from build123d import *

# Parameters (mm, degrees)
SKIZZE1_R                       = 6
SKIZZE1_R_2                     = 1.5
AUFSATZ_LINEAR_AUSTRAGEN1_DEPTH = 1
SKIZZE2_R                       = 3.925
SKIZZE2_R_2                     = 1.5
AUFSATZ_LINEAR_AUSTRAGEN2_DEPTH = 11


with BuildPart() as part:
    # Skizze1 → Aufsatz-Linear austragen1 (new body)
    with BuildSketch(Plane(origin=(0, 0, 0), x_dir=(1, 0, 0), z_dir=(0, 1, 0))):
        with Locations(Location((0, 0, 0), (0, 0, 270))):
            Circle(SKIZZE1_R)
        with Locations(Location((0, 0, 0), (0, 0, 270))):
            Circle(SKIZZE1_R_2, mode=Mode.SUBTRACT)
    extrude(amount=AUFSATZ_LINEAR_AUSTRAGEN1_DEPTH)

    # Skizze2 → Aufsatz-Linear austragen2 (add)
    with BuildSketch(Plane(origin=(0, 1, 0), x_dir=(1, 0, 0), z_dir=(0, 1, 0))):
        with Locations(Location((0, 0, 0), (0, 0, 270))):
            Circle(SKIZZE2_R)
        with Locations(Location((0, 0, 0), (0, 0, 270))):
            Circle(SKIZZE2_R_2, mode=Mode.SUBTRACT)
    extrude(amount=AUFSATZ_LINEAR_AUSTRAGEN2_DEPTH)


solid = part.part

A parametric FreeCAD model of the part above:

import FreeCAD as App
import Part
import Sketcher

V = App.Vector
Q = App.Units.Quantity

doc = App.newDocument("Part")
body = doc.addObject("PartDesign::Body", "Body")

# Sketch on XZ plane
sketch1 = doc.addObject("Sketcher::SketchObject", "Sketch")
body.addObject(sketch1)
sketch1.AttachmentSupport = (doc.XZ_Plane, [""])
sketch1.MapMode = "FlatFace"
sketch1.addGeometry([
    Part.Circle(V(0, 0, 0), V(0, 0, 1), 6),
    Part.Circle(V(0, 0, 0), V(0, 0, 1), 1.5),
], False)
sketch1.addConstraint([
    Sketcher.Constraint("Coincident", 0, 3, -1, 1),
    Sketcher.Constraint("Coincident", 1, 3, -1, 1),
    Sketcher.Constraint("Diameter", 0, Q("12 mm")),
    Sketcher.Constraint("Diameter", 1, Q("3 mm")),
])
pad1 = doc.addObject("PartDesign::Pad", "Pad")
body.addObject(pad1)
pad1.Profile = sketch1
pad1.Length = 1
pad1.Reversed = True

# Sketch on XZ plane
sketch2 = doc.addObject("Sketcher::SketchObject", "Sketch001")
body.addObject(sketch2)
sketch2.AttachmentSupport = (doc.XZ_Plane, [""])
sketch2.MapMode = "FlatFace"
sketch2.AttachmentOffset = App.Placement(V(0, 0, -1), App.Rotation())
sketch2.addGeometry([
    Part.Circle(V(0, 0, 0), V(0, 0, 1), 3.9),
    Part.Circle(V(0, 0, 0), V(0, 0, 1), 1.5),
], False)
sketch2.addConstraint([
    Sketcher.Constraint("Coincident", 0, 3, -1, 1),
    Sketcher.Constraint("Coincident", 1, 3, -1, 1),
    Sketcher.Constraint("Diameter", 1, Q("3 mm")),
    Sketcher.Constraint("Diameter", 0, Q("7.85 mm")),
])
pad2 = doc.addObject("PartDesign::Pad", "Pad001")
body.addObject(pad2)
pad2.Profile = sketch2
pad2.Length = 11
pad2.Reversed = True

doc.recompute()
